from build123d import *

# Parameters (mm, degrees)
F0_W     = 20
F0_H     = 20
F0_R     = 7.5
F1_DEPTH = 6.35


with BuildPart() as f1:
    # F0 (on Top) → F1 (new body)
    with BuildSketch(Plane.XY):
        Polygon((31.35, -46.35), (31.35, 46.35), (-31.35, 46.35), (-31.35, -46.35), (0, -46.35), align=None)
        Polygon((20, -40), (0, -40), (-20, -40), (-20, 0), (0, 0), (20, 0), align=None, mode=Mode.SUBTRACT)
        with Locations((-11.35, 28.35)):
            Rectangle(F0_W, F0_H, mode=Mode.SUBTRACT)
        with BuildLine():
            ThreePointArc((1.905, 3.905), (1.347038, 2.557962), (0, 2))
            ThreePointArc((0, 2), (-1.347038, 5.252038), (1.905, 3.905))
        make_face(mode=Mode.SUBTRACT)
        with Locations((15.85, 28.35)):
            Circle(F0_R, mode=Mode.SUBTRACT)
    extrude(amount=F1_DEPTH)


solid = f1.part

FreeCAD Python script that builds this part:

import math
import FreeCAD as App
import Part
import Sketcher

V = App.Vector


def add_polygon(sketch, points):
    """Adds a closed chain of lines whose ends are joined by coincident constraints."""
    first, n = sketch.GeometryCount, len(points)
    for a, b in zip(points, points[1:] + points[:1]):
        sketch.addGeometry(Part.LineSegment(App.Vector(*a, 0), App.Vector(*b, 0)), False)
    for i in range(n):
        sketch.addConstraint(Sketcher.Constraint("Coincident", first + i, 2, first + (i + 1) % n, 1))

doc = App.newDocument("Part")
body = doc.addObject("PartDesign::Body", "Body")

sketch1 = body.newObject("Sketcher::SketchObject", "Sketch")
sketch1.AttachmentSupport = (doc.getObject("XY_Plane"), [""])
sketch1.MapMode = "FlatFace"
add_polygon(sketch1, [(31.35, -46.35), (31.35, 46.35), (-31.35, 46.35), (-31.35, -46.35)])
add_polygon(sketch1, [(20, 0), (20, -40), (-20, -40), (-20, 0)])
sketch1.addGeometry(Part.ArcOfCircle(Part.Circle(V(0, 3.905, 0), V(0, 0, 1), 1.905), math.radians(0.000007), math.radians(269.999993)), False)
sketch1.addGeometry(Part.ArcOfCircle(Part.Circle(V(-0.000001, 3.905001, 0), V(0, 0, 1), 1.905001), math.radians(-89.999957), math.radians(-0.000043)), False)
add_polygon(sketch1, [(-1.35, 18.35), (-21.35, 18.35), (-21.35, 38.35), (-1.35, 38.35)])
sketch1.addGeometry(Part.Circle(V(15.85, 28.35, 0), V(0, 0, 1), 7.5), False)
sketch1.addConstraint([
    Sketcher.Constraint("Tangent", 8, 1, 9, 2),
    Sketcher.Constraint("Coincident", 9, 1, 8, 2),
    Sketcher.Constraint("Vertical", 0),
    Sketcher.Constraint("Horizontal", 1),
    Sketcher.Constraint("Vertical", 2),
    Sketcher.Constraint("Horizontal", 3),
    Sketcher.Constraint("Vertical", 4),
    Sketcher.Constraint("Horizontal", 5),
    Sketcher.Constraint("Vertical", 6),
    Sketcher.Constraint("Horizontal", 7),
    Sketcher.Constraint("Horizontal", 10),
    Sketcher.Constraint("Vertical", 11),
    Sketcher.Constraint("Horizontal", 12),
    Sketcher.Constraint("Vertical", 13),
    Sketcher.Constraint("Symmetric", 0, 2, 2, 2, -1, 1),
    Sketcher.Constraint("Symmetric", 6, 2, 7, 2, -1, 1),
    Sketcher.Constraint("PointOnObject", 8, 3, -2),
    Sketcher.Constraint("PointOnObject", 9, 1, -2),
    Sketcher.Constraint("Horizontal", 9, 3, 8, 1),
    Sketcher.Constraint("Equal", 7, 4),
    Sketcher.Constraint("Equal", 12, 11),
    Sketcher.Constraint("Diameter", 14, 15.0),
    Sketcher.Constraint("DistanceX", 5, 2, 5, 1, 40.0),
    Sketcher.Constraint("DistanceX", 10, 2, 10, 1, 20.0),
    Sketcher.Constraint("DistanceX", 1, 2, 1, 1, 62.7),
    Sketcher.Constraint("DistanceY", 0, 1, 0, 2, 92.7),
    Sketcher.Constraint("DistanceY", -1, 1, 9, 1, 2.0),
    Sketcher.Constraint("Radius", 8, 1.905),
    Sketcher.Constraint("DistanceY", 14, 3, 0, 2, 18.0),
    Sketcher.Constraint("DistanceX", 1, 2, 11, 2, 10.0),
    Sketcher.Constraint("DistanceY", 11, 2, 1, 2, 8.0),
    Sketcher.Constraint("DistanceX", 14, 3, 0, 2, 15.5),
])
pad1 = body.newObject("PartDesign::Pad", "Pad")
pad1.Profile = sketch1
pad1.Length = 6.35

doc.recompute()
